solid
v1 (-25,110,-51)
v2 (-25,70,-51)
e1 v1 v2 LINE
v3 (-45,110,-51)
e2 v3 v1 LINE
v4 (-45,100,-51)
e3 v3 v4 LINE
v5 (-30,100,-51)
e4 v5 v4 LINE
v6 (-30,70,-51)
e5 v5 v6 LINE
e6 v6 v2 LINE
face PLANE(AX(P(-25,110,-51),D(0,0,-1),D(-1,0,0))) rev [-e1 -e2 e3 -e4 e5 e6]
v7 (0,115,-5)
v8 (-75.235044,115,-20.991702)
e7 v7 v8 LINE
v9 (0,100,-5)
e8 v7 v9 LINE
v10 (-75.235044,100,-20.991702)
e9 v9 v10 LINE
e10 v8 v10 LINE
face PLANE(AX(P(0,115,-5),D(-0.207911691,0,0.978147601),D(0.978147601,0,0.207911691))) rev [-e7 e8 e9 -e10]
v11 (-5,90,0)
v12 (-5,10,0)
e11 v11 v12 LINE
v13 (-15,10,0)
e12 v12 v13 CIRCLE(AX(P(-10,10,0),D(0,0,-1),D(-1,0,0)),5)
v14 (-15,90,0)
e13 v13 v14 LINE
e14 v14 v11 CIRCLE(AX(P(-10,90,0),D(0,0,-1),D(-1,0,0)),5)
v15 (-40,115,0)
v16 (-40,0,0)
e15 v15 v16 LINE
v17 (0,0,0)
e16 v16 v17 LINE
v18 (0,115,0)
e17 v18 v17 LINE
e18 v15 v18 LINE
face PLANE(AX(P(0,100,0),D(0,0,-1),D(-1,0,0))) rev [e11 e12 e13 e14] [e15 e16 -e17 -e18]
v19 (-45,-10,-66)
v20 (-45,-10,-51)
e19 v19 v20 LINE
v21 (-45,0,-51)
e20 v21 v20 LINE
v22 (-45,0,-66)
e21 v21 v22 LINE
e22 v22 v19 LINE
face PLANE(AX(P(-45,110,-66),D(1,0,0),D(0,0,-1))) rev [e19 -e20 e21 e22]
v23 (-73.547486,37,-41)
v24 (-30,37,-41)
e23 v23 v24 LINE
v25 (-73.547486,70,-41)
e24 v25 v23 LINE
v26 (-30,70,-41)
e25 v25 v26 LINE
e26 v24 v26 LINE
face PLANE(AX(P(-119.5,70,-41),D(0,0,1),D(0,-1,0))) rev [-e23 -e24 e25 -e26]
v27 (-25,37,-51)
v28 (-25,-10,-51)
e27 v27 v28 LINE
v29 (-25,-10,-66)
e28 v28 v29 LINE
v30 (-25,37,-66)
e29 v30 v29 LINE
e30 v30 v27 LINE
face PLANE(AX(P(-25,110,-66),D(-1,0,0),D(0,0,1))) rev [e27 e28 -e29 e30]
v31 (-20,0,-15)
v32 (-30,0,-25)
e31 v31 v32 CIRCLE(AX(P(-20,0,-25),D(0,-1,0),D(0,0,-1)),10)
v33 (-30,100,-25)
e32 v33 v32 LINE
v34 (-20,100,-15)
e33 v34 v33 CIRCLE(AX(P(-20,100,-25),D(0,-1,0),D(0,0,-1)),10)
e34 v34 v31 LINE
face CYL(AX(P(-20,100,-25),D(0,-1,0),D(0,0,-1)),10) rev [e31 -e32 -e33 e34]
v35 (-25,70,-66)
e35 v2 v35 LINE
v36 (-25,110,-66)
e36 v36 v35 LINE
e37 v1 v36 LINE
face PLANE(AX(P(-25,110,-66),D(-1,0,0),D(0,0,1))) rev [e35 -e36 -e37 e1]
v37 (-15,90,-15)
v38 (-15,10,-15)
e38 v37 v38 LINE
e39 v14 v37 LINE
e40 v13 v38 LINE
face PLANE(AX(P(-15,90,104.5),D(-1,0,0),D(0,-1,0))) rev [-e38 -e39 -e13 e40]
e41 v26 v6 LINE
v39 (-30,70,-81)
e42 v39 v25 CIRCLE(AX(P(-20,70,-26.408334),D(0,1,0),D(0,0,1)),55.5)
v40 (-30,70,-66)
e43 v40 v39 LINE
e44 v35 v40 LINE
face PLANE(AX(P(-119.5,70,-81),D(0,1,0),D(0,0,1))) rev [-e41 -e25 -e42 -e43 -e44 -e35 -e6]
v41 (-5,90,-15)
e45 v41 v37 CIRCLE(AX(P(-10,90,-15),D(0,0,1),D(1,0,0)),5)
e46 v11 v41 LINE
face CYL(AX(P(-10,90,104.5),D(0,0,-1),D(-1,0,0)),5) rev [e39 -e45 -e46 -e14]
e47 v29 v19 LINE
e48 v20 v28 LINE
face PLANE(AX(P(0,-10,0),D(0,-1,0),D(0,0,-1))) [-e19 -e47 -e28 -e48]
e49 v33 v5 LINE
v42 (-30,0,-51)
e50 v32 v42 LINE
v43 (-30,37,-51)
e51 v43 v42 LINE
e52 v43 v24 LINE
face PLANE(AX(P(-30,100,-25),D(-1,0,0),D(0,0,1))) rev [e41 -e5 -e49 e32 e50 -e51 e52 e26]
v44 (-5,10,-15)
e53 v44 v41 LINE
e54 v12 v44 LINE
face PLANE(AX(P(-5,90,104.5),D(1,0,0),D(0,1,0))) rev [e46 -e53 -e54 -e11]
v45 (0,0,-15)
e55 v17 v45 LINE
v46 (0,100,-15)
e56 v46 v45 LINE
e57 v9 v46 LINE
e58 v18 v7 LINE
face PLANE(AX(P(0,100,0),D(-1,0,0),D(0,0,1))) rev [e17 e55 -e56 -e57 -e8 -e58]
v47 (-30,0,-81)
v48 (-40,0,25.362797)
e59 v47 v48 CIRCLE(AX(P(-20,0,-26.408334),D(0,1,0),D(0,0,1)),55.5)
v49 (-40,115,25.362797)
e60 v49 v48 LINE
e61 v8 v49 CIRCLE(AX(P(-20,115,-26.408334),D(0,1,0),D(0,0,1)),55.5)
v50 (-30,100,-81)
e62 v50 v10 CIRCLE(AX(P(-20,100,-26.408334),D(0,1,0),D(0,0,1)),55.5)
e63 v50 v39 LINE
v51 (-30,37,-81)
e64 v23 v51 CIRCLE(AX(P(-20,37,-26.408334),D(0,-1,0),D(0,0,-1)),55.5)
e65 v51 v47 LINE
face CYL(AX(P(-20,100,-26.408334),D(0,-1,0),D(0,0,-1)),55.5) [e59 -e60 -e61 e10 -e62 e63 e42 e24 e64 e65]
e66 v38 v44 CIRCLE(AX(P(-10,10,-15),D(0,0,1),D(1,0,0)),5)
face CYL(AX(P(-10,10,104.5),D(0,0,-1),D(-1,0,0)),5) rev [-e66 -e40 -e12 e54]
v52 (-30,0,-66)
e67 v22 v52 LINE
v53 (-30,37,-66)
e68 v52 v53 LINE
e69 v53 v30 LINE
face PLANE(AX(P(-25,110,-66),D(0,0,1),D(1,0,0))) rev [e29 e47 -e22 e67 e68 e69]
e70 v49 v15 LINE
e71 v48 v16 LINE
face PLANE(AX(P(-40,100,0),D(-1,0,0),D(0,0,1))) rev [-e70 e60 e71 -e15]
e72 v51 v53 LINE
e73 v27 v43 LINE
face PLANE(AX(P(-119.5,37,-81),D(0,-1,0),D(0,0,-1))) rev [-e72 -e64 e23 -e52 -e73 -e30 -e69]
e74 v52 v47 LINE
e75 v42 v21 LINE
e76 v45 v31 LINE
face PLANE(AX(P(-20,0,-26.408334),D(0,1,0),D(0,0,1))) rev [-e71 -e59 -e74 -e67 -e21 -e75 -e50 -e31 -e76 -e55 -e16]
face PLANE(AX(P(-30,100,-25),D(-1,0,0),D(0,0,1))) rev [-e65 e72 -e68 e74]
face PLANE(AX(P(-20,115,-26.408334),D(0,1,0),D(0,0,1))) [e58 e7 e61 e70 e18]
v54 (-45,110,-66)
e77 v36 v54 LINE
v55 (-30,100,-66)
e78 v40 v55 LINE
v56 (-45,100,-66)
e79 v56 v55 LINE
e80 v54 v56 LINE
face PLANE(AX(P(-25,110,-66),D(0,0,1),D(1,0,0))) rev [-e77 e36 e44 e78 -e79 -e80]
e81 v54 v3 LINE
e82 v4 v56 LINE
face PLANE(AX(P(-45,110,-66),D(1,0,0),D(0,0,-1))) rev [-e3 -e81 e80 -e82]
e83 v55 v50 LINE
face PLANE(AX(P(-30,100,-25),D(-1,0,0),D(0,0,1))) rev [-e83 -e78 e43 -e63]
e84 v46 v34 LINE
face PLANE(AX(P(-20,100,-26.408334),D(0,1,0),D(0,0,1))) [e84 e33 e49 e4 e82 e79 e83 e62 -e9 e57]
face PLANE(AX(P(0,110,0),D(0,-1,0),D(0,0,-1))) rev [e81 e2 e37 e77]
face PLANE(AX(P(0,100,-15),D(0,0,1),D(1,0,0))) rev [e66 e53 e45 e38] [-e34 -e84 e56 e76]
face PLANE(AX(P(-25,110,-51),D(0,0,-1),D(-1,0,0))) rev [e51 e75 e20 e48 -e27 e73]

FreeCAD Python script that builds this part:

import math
import FreeCAD as App
import Part
import Sketcher
from FreeCAD import Vector
Q = App.Units.Quantity


def add_polygon(sketch, points):
    """Adds a closed chain of lines whose ends are joined by coincident constraints."""
    first, n = sketch.GeometryCount, len(points)
    for a, b in zip(points, points[1:] + points[:1]):
        sketch.addGeometry(Part.LineSegment(App.Vector(*a, 0), App.Vector(*b, 0)), False)
    for i in range(n):
        sketch.addConstraint(Sketcher.Constraint("Coincident", first + i, 2, first + (i + 1) % n, 1))

doc = App.newDocument("Part")
body = doc.addObject("PartDesign::Body", "Body")

# Sketch on XZ plane
sketch1 = body.newObject("Sketcher::SketchObject", "Sketch")
sketch1.AttachmentSupport = (doc.getObject("XZ_Plane"), [""])
sketch1.MapMode = "FlatFace"
sketch1.addGeometry(Part.LineSegment(Vector(0, 0, 0), Vector(0, -15, 0)), False)
sketch1.addGeometry(Part.LineSegment(Vector(0, -15, 0), Vector(-20, -15, 0)), False)
sketch1.addGeometry(Part.ArcOfCircle(Part.Circle(Vector(-20, -25, 0), Vector(0, 0, 1), 10), math.radians(90), math.radians(180)), False)
sketch1.addGeometry(Part.LineSegment(Vector(-30, -25, 0), Vector(-30, -81, 0)), False)
sketch1.addGeometry(Part.ArcOfCircle(Part.Circle(Vector(-20, -26, 0), Vector(0, 0, 1), 56), math.radians(111), math.radians(260)), False)
sketch1.addGeometry(Part.LineSegment(Vector(-40, 25, 0), Vector(-40, 0, 0)), False)
sketch1.addGeometry(Part.LineSegment(Vector(-40, 0, 0), Vector(0, 0, 0)), False)
sketch1.addConstraint(Sketcher.Constraint("Coincident", 0, 2, 1, 1))
sketch1.addConstraint(Sketcher.Constraint("Tangent", 1, 2, 2, 1))
sketch1.addConstraint(Sketcher.Constraint("Tangent", 2, 2, 3, 1))
sketch1.addConstraint(Sketcher.Constraint("Coincident", 3, 2, 4, 2))
sketch1.addConstraint(Sketcher.Constraint("Coincident", 4, 1, 5, 1))
sketch1.addConstraint(Sketcher.Constraint("Coincident", 5, 2, 6, 1))
sketch1.addConstraint(Sketcher.Constraint("Coincident", 6, 2, 0, 1))
sketch1.addConstraint(Sketcher.Constraint("Vertical", 0))
sketch1.addConstraint(Sketcher.Constraint("Horizontal", 1))
sketch1.addConstraint(Sketcher.Constraint("Vertical", 3))
sketch1.addConstraint(Sketcher.Constraint("Vertical", 5))
sketch1.addConstraint(Sketcher.Constraint("Horizontal", 6))
sketch1.addConstraint(Sketcher.Constraint("Coincident", 6, 2, -1, 1))
sketch1.addConstraint(Sketcher.Constraint("Vertical", 2, 3, 4, 3))
sketch1.addConstraint(Sketcher.Constraint("Radius", 2, Q("10 mm")))
sketch1.addConstraint(Sketcher.Constraint("Radius", 4, Q("55.5 mm")))
sketch1.addConstraint(Sketcher.Constraint("DistanceX", 1, 2, 1, 1, Q("20 mm")))
sketch1.addConstraint(Sketcher.Constraint("DistanceX", 6, 1, 6, 2, Q("40 mm")))
sketch1.addConstraint(Sketcher.Constraint("DistanceY", 0, 2, 0, 1, Q("15 mm")))
sketch1.addConstraint(Sketcher.Constraint("DistanceY", 3, 2, 3, 1, Q("56 mm")))
pad1 = body.newObject("PartDesign::Pad", "Pad")
pad1.Profile = sketch1
pad1.Length = 100
pad1.Reversed = True

# Sketch on XZ plane
sketch2 = body.newObject("Sketcher::SketchObject", "Sketch001")
sketch2.AttachmentSupport = (doc.getObject("XZ_Plane"), [""])
sketch2.MapMode = "FlatFace"
sketch2.AttachmentOffset = App.Placement(Vector(0, 0, -100), App.Rotation())
sketch2.addGeometry(Part.LineSegment(Vector(0, -5, 0), Vector(-75, -21, 0)), False)
sketch2.addGeometry(Part.ArcOfCircle(Part.Circle(Vector(-20, -26, 0), Vector(0, 0, 1), 55), math.radians(111), math.radians(174)), False)
sketch2.addGeometry(Part.LineSegment(Vector(-40, 25, 0), Vector(-40, 0, 0)), False)
sketch2.addGeometry(Part.LineSegment(Vector(-40, 0, 0), Vector(0, 0, 0)), False)
sketch2.addGeometry(Part.LineSegment(Vector(0, 0, 0), Vector(0, -5, 0)), False)
sketch2.addConstraint(Sketcher.Constraint("Coincident", 0, 2, 1, 2))
sketch2.addConstraint(Sketcher.Constraint("Coincident", 1, 1, 2, 1))
sketch2.addConstraint(Sketcher.Constraint("Coincident", 2, 2, 3, 1))
sketch2.addConstraint(Sketcher.Constraint("Coincident", 3, 2, 4, 1))
sketch2.addConstraint(Sketcher.Constraint("Coincident", 4, 2, 0, 1))
sketch2.addConstraint(Sketcher.Constraint("Vertical", 2))
sketch2.addConstraint(Sketcher.Constraint("Horizontal", 3))
sketch2.addConstraint(Sketcher.Constraint("Vertical", 4))
sketch2.addConstraint(Sketcher.Constraint("Coincident", 3, 2, -1, 1))
sketch2.addConstraint(Sketcher.Constraint("Radius", 1, Q("55.5 mm")))
sketch2.addConstraint(Sketcher.Constraint("DistanceX", 3, 1, 3, 2, Q("40 mm")))
sketch2.addConstraint(Sketcher.Constraint("DistanceY", 4, 2, 4, 1, Q("5 mm")))
sketch2.addConstraint(Sketcher.Constraint("Angle", 0, Q("-168 deg")))
sketch2.addConstraint(Sketcher.Constraint("DistanceX", 1, 3, -1, 1, Q("20 mm")))
sketch2.addConstraint(Sketcher.Constraint("DistanceY", 0, 2, 1, 1, Q("46.354499 mm")))
pad2 = body.newObject("PartDesign::Pad", "Pad001")
pad2.Profile = sketch2
pad2.Length = 15
pad2.Reversed = True

# Sketch on XZ plane
sketch3 = body.newObject("Sketcher::SketchObject", "Sketch002")
sketch3.AttachmentSupport = (doc.getObject("XZ_Plane"), [""])
sketch3.MapMode = "FlatFace"
sketch3.AttachmentOffset = App.Placement(Vector(0, 0, -50), App.Rotation())
add_polygon(sketch3, [(-45, -66), (-45, -51), (-25, -51), (-25, -66)])  # lines 0-3
sketch3.addConstraint(Sketcher.Constraint("Vertical", 0))
sketch3.addConstraint(Sketcher.Constraint("Horizontal", 1))
sketch3.addConstraint(Sketcher.Constraint("Vertical", 2))
sketch3.addConstraint(Sketcher.Constraint("Horizontal", 3))
sketch3.addConstraint(Sketcher.Constraint("DistanceX", 1, 1, 1, 2, Q("20 mm")))
sketch3.addConstraint(Sketcher.Constraint("DistanceY", 0, 1, 0, 2, Q("15 mm")))
sketch3.addConstraint(Sketcher.Constraint("DistanceX", 0, 2, -1, 1, Q("45 mm")))
sketch3.addConstraint(Sketcher.Constraint("DistanceY", 0, 2, -1, 1, Q("51 mm")))
pad3 = body.newObject("PartDesign::Pad", "Pad002")
pad3.Profile = sketch3
pad3.Length = 120
pad3.Midplane = True

# Sketch on YZ plane
sketch4 = body.newObject("Sketcher::SketchObject", "Sketch003")
sketch4.AttachmentSupport = (doc.getObject("YZ_Plane"), [""])
sketch4.MapMode = "FlatFace"
add_polygon(sketch4, [(70, -41), (37, -41), (37, -81), (70, -81)])  # lines 0-3
sketch4.addConstraint(Sketcher.Constraint("Horizontal", 0))
sketch4.addConstraint(Sketcher.Constraint("Vertical", 1))
sketch4.addConstraint(Sketcher.Constraint("Horizontal", 2))
sketch4.addConstraint(Sketcher.Constraint("Vertical", 3))
sketch4.addConstraint(Sketcher.Constraint("DistanceX", 0, 2, 0, 1, Q("33 mm")))
sketch4.addConstraint(Sketcher.Constraint("DistanceY", 1, 2, 1, 1, Q("40 mm")))
sketch4.addConstraint(Sketcher.Constraint("DistanceX", -1, 1, 0, 2, Q("37 mm")))
sketch4.addConstraint(Sketcher.Constraint("DistanceY", 0, 2, -1, 1, Q("41 mm")))
pocket1 = body.newObject("PartDesign::Pocket", "Pocket")
pocket1.Profile = sketch4
pocket1.Length = 239
pocket1.Midplane = True

# Sketch on XY plane
sketch5 = body.newObject("Sketcher::SketchObject", "Sketch004")
sketch5.AttachmentSupport = (doc.getObject("XY_Plane"), [""])
sketch5.MapMode = "FlatFace"
sketch5.AttachmentOffset = App.Placement(Vector(0, 0, -15), App.Rotation())
sketch5.addGeometry(Part.LineSegment(Vector(-15, 10, 0), Vector(-15, 90, 0)), False)
sketch5.addGeometry(Part.ArcOfCircle(Part.Circle(Vector(-10, 90, 0), Vector(0, 0, 1), 5), math.radians(0), math.radians(180)), False)
sketch5.addGeometry(Part.LineSegment(Vector(-5, 90, 0), Vector(-5, 10, 0)), False)
sketch5.addGeometry(Part.ArcOfCircle(Part.Circle(Vector(-10, 10, 0), Vector(0, 0, 1), 5), math.radians(180), math.radians(360)), False)
sketch5.addConstraint(Sketcher.Constraint("Tangent", 0, 2, 1, 2))
sketch5.addConstraint(Sketcher.Constraint("Tangent", 1, 1, 2, 1))
sketch5.addConstraint(Sketcher.Constraint("Tangent", 2, 2, 3, 2))
sketch5.addConstraint(Sketcher.Constraint("Tangent", 3, 1, 0, 1))
sketch5.addConstraint(Sketcher.Constraint("Vertical", 0))
sketch5.addConstraint(Sketcher.Constraint("Vertical", 2))
sketch5.addConstraint(Sketcher.Constraint("Radius", 1, Q("5 mm")))
sketch5.addConstraint(Sketcher.Constraint("DistanceY", 0, 1, 0, 2, Q("80 mm")))
sketch5.addConstraint(Sketcher.Constraint("DistanceX", 1, 3, -1, 1, Q("10 mm")))
sketch5.addConstraint(Sketcher.Constraint("DistanceY", -1, 1, 1, 3, Q("90 mm")))
pocket2 = body.newObject("PartDesign::Pocket", "Pocket001")
pocket2.Profile = sketch5
pocket2.Length = 239
pocket2.Midplane = True

doc.recompute()
